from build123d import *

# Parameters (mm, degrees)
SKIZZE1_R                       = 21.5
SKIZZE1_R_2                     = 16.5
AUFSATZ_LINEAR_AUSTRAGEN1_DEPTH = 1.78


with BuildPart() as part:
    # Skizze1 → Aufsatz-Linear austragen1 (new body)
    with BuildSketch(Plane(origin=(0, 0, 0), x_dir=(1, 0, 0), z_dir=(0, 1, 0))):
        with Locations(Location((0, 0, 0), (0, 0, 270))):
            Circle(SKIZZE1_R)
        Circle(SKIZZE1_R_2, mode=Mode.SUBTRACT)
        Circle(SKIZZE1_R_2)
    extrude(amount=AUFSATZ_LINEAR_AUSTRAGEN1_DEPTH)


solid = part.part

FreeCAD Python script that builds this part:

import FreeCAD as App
import Part
import Sketcher

V = App.Vector
Q = App.Units.Quantity

doc = App.newDocument("Part")
body = doc.addObject("PartDesign::Body", "Body")

# Sketch on XZ plane
sketch1 = body.newObject("Sketcher::SketchObject", "Sketch")
sketch1.AttachmentSupport = (doc.getObject("XZ_Plane"), [""])
sketch1.MapMode = "FlatFace"
sketch1.addGeometry(Part.Circle(V(0, 0, 0), V(0, 0, 1), 21.5), False)
sketch1.addConstraint([
    Sketcher.Constraint("Coincident", 0, 3, -1, 1),
    Sketcher.Constraint("Diameter", 0, Q("43 mm")),
])
pad1 = body.newObject("PartDesign::Pad", "Pad")
pad1.Profile = sketch1
pad1.Length = 1.78
pad1.Reversed = True

doc.recompute()
